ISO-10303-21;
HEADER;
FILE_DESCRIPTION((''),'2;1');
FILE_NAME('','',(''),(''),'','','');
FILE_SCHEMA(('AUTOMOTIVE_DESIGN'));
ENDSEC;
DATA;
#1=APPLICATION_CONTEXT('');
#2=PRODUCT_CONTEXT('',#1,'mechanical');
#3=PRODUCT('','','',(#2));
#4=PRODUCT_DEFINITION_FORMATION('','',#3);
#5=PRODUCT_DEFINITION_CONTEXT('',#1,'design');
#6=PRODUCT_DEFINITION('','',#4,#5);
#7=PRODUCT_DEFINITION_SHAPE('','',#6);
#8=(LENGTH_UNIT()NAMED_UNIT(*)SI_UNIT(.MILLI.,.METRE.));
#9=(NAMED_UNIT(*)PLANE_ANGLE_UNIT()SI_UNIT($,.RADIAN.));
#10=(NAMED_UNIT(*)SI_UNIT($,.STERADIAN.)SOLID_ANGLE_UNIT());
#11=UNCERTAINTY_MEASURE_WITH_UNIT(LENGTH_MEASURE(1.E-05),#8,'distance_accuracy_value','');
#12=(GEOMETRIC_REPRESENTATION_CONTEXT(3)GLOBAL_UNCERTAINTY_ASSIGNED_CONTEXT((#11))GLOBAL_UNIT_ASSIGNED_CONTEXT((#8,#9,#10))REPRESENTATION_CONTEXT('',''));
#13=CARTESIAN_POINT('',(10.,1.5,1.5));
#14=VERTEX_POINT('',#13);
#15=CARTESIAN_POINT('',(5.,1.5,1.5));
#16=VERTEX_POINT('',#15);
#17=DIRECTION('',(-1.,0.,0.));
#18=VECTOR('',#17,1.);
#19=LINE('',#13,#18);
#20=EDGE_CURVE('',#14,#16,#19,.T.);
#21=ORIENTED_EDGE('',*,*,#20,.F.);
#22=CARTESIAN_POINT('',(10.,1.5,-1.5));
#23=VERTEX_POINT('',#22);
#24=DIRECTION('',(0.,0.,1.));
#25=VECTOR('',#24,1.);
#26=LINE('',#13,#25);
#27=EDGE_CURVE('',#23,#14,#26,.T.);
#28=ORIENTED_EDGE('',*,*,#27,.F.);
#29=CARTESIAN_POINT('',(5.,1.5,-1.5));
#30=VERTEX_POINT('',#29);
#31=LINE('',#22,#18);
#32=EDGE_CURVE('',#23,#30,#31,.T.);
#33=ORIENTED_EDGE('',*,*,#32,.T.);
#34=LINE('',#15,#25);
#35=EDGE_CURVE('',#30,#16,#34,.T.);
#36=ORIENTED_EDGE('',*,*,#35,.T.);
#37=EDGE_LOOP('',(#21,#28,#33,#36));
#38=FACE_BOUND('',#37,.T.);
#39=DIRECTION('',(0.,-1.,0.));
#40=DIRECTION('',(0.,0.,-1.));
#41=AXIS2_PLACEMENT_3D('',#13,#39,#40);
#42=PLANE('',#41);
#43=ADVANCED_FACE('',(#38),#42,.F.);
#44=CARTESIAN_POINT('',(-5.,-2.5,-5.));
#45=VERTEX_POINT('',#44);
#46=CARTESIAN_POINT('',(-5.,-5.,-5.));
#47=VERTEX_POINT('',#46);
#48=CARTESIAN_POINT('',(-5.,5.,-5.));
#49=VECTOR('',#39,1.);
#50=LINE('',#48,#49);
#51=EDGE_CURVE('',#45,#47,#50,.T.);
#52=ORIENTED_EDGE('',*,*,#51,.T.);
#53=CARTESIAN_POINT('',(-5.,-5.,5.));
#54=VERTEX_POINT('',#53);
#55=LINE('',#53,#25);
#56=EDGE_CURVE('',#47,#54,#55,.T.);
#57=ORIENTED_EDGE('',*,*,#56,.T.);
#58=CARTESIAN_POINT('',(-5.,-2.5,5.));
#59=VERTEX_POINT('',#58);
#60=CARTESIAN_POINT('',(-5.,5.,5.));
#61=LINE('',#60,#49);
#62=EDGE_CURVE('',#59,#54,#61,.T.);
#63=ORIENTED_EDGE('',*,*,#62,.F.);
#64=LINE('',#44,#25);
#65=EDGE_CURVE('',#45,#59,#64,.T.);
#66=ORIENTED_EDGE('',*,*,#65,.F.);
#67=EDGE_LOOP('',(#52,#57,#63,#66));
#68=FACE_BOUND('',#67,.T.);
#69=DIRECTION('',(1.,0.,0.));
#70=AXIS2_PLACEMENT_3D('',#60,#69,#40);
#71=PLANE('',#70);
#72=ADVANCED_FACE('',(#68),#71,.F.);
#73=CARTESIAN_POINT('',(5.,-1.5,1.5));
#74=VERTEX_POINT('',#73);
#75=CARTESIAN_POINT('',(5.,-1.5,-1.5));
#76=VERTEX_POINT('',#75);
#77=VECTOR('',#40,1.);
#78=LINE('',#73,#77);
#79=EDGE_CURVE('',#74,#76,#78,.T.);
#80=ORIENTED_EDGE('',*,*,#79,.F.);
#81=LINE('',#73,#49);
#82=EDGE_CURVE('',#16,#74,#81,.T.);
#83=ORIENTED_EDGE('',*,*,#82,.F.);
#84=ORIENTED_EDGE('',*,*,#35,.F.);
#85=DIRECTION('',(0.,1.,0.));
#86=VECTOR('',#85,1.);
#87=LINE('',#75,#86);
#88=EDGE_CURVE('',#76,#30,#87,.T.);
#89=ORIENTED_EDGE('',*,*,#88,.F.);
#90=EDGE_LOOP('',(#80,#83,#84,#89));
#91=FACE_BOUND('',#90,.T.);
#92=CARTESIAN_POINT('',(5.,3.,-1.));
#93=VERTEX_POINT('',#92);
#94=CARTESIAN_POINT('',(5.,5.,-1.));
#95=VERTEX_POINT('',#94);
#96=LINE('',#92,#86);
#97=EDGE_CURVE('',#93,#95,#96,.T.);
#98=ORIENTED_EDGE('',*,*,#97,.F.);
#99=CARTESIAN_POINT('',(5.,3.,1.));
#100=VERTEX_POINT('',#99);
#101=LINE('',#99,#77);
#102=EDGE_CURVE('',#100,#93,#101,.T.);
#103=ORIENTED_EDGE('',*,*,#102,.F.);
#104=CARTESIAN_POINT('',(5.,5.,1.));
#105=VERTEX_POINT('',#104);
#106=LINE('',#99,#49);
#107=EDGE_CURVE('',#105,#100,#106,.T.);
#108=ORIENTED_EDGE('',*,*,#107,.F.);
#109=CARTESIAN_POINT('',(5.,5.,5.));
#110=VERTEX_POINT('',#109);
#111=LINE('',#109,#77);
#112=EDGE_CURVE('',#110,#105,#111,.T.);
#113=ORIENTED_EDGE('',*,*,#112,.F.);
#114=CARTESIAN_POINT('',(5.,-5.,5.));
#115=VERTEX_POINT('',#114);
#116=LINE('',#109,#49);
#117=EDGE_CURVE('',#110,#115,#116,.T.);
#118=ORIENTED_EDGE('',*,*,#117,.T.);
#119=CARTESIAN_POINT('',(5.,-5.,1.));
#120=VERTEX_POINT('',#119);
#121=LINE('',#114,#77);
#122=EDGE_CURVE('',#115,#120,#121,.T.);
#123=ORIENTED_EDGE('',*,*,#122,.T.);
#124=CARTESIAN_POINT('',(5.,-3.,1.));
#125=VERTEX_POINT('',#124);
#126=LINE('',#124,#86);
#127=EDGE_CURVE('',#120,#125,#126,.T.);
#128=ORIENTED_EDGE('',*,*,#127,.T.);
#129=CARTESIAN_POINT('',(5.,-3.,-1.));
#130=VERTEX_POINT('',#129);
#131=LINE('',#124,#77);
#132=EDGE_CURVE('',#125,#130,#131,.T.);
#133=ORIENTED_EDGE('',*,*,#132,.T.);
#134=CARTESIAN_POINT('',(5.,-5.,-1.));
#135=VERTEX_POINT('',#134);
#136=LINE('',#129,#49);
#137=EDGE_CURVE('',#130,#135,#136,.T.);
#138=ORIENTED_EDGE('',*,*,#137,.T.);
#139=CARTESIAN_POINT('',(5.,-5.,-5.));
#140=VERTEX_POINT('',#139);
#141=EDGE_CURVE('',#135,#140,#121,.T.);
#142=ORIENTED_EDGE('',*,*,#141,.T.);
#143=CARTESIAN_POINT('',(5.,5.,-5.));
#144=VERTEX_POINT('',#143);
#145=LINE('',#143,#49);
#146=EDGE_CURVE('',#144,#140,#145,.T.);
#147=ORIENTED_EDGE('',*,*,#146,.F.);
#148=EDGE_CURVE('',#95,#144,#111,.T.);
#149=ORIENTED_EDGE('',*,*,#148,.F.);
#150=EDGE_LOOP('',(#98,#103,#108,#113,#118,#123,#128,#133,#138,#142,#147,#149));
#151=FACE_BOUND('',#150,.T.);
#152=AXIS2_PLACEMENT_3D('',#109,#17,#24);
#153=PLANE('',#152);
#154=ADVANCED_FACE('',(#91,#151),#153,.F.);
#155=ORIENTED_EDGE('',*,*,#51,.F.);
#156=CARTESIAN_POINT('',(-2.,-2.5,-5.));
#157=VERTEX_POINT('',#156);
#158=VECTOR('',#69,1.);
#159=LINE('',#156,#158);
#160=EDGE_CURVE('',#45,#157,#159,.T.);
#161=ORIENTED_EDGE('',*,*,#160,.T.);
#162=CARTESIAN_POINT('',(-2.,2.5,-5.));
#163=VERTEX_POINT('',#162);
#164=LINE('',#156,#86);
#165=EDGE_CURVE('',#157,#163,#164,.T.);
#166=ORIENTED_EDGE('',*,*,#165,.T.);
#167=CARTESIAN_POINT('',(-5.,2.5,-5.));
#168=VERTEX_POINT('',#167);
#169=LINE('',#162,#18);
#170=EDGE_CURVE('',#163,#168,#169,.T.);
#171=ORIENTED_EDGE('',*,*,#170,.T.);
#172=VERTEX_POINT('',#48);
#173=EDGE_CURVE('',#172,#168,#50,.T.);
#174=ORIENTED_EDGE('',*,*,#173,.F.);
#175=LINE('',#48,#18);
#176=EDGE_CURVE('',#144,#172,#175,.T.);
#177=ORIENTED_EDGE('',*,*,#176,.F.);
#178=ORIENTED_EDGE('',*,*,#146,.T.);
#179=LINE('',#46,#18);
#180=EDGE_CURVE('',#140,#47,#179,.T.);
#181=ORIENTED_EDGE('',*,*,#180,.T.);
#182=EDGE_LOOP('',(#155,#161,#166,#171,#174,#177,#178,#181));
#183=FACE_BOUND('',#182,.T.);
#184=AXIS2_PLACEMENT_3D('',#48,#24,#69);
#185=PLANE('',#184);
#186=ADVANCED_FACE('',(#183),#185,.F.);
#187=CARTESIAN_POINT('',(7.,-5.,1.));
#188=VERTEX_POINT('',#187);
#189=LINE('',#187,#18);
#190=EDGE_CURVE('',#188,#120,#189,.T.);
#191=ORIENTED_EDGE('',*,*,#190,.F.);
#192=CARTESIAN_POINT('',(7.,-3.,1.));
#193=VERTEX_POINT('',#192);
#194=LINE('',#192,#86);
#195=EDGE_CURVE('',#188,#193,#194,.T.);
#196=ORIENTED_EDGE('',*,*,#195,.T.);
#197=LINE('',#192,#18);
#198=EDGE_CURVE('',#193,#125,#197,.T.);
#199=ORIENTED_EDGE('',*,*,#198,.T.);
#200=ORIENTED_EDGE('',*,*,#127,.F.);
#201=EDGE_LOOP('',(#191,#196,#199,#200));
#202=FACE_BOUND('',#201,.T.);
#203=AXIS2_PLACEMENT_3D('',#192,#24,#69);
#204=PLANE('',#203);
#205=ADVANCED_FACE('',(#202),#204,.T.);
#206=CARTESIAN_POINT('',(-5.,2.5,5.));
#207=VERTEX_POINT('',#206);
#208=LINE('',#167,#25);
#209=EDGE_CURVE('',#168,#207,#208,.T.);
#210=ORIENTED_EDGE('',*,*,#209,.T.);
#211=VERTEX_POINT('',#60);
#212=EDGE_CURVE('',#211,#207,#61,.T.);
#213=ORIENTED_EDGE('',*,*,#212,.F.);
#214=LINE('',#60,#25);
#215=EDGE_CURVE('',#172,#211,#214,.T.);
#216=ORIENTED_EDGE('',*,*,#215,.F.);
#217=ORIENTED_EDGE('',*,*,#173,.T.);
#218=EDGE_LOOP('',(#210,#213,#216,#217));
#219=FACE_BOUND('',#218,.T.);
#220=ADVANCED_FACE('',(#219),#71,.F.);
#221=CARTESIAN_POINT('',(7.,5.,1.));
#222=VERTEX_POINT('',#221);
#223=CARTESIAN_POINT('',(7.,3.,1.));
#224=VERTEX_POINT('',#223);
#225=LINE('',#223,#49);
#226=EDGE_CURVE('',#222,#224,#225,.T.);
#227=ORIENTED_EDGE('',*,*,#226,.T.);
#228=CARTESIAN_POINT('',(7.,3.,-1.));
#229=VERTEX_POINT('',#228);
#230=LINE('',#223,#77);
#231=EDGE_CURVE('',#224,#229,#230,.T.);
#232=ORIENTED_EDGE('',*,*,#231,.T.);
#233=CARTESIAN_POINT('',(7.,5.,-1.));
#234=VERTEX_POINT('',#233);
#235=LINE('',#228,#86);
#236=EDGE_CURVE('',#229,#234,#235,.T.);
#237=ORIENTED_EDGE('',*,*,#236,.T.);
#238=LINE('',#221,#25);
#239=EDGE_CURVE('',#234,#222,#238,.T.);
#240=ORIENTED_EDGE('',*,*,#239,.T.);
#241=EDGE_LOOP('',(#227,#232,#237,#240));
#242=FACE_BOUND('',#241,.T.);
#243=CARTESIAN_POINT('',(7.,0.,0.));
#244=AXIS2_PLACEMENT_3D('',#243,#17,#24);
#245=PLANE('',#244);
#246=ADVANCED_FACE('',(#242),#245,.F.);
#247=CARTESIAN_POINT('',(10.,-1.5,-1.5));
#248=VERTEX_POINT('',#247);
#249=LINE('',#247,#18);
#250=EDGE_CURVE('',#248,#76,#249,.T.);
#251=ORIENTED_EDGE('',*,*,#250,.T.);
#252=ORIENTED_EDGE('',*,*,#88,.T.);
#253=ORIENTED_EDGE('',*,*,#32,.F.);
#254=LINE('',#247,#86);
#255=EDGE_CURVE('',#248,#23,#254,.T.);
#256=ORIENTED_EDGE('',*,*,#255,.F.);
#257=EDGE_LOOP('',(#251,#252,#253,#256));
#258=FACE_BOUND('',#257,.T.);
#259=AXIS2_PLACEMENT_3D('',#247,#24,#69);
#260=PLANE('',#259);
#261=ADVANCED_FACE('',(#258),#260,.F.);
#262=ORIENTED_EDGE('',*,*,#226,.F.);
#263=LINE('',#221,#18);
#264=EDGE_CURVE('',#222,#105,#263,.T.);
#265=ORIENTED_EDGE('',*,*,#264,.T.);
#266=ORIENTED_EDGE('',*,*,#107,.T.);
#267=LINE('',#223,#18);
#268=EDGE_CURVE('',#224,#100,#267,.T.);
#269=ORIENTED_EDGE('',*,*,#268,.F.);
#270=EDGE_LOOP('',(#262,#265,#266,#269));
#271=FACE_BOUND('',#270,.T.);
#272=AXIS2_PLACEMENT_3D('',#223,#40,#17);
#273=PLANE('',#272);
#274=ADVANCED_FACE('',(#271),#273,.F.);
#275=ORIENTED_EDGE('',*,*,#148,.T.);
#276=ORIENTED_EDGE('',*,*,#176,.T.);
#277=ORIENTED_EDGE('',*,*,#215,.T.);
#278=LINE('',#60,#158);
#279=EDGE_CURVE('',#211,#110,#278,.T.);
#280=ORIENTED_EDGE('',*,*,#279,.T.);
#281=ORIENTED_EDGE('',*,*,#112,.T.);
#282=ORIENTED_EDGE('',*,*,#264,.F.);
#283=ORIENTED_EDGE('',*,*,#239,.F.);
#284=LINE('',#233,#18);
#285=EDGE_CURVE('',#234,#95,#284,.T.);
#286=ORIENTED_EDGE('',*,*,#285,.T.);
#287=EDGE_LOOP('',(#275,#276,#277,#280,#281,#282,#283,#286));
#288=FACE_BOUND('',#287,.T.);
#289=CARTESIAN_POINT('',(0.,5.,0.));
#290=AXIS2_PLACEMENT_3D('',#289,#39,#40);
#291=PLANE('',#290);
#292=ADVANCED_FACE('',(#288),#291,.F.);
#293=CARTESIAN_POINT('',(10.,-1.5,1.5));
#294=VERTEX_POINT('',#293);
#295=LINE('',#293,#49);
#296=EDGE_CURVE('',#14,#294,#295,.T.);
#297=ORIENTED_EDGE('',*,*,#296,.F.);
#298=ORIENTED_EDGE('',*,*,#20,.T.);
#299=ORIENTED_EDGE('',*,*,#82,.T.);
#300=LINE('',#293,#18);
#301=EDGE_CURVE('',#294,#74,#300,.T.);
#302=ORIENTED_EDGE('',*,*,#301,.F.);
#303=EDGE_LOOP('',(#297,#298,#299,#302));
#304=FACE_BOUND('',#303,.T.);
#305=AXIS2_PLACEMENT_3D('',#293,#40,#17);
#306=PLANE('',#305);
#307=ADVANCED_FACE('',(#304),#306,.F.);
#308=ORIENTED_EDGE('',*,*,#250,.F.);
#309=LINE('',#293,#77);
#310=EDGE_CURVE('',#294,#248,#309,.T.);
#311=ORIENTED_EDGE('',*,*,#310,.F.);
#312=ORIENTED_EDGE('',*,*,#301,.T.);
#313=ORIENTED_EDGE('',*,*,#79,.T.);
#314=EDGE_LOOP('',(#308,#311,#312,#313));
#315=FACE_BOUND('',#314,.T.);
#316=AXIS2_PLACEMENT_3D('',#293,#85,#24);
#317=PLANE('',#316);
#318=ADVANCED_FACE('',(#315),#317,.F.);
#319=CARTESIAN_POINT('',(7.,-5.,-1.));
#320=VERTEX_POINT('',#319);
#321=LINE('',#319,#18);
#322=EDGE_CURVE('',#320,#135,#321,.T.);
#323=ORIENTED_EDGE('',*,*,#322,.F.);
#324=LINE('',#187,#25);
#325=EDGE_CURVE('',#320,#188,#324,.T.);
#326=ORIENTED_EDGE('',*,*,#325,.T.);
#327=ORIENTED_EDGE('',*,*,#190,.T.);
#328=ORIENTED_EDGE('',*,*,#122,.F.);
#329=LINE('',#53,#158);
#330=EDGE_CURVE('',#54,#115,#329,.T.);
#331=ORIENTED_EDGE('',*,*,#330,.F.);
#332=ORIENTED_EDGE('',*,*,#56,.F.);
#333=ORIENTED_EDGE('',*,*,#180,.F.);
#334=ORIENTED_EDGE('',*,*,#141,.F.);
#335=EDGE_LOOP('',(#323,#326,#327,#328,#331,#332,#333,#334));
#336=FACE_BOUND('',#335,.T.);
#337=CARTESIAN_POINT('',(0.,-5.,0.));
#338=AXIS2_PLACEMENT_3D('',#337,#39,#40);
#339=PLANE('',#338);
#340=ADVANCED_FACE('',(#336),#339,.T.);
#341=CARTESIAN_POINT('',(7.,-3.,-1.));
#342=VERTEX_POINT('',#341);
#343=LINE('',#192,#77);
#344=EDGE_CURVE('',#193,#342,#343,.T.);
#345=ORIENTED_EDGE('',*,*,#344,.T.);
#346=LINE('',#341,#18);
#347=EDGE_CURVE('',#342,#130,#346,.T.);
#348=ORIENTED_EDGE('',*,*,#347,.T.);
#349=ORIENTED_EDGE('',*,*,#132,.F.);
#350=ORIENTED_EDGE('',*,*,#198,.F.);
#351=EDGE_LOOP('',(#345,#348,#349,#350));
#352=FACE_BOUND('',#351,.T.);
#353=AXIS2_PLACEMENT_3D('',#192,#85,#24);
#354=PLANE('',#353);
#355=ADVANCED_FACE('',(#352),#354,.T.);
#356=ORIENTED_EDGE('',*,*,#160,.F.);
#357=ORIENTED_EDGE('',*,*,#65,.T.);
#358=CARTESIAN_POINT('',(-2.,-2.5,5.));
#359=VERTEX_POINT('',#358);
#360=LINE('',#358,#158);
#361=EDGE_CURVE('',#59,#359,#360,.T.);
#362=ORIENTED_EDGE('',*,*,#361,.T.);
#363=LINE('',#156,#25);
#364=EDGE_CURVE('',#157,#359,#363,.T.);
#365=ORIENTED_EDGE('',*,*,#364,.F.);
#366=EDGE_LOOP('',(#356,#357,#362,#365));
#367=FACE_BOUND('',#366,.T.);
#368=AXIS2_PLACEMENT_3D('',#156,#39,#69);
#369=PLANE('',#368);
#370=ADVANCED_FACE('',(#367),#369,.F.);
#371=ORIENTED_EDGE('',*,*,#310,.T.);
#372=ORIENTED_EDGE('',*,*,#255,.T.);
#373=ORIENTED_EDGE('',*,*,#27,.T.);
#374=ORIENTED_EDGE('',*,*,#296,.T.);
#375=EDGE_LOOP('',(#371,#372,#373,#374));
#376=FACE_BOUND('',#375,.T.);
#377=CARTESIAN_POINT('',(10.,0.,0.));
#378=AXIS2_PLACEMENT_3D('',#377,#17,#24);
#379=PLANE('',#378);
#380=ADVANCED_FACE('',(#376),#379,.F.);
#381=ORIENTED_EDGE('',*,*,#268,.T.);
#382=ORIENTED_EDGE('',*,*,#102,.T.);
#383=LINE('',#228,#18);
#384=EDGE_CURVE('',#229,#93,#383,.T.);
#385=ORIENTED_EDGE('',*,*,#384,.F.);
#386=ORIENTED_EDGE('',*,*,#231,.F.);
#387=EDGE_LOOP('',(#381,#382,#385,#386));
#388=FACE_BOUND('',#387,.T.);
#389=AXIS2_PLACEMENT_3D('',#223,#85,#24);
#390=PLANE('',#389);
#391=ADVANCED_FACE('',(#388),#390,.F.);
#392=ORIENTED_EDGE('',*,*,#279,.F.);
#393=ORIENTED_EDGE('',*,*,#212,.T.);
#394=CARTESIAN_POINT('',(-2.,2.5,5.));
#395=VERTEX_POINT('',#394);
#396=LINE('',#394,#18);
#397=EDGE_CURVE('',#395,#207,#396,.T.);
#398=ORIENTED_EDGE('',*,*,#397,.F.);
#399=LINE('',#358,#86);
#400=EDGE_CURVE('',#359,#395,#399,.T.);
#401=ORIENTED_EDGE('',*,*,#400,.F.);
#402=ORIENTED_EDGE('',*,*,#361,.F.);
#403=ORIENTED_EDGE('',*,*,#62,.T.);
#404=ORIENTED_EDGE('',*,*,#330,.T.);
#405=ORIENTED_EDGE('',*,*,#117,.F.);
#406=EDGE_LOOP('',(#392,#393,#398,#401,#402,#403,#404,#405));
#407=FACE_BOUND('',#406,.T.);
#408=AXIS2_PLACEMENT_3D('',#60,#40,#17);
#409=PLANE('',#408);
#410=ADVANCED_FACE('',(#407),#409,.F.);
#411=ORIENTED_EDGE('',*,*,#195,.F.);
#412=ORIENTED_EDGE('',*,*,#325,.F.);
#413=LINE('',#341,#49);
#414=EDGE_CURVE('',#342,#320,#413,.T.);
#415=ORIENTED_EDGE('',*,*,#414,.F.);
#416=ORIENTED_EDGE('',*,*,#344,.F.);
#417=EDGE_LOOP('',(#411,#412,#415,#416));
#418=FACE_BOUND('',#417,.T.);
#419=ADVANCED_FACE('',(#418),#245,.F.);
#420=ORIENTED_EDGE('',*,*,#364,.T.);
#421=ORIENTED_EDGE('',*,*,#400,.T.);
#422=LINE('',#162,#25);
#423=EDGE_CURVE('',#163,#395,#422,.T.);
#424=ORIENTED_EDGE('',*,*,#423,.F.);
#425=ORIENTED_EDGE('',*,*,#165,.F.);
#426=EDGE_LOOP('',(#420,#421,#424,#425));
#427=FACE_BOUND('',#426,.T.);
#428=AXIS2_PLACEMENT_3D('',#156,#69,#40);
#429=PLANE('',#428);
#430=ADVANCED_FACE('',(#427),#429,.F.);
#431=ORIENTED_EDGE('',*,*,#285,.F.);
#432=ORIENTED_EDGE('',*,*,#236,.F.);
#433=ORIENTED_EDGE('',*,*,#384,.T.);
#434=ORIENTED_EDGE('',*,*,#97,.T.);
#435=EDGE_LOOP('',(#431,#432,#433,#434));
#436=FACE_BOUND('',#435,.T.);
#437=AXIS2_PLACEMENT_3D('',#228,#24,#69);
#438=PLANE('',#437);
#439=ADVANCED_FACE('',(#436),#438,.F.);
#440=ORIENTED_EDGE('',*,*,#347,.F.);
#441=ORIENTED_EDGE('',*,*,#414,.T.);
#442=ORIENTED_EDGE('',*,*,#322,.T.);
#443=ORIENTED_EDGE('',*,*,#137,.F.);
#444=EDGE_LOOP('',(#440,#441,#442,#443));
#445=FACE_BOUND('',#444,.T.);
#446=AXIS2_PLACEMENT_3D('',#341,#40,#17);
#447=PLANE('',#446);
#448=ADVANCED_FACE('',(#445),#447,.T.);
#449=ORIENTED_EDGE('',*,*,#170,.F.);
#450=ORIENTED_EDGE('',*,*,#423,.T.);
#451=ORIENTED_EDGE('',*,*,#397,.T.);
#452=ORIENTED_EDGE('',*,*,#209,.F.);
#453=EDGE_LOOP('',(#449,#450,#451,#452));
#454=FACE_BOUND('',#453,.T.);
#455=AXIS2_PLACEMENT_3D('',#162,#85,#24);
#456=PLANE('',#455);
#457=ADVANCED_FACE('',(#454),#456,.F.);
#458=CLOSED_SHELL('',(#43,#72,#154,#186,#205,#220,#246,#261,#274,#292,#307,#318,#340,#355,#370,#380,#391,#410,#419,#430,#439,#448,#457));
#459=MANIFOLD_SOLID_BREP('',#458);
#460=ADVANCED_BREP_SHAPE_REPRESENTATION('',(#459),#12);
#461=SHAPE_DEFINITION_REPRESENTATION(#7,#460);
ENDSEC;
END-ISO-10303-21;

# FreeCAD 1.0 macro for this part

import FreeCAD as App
import Part
import Sketcher
Q = App.Units.Quantity


def add_polygon(sketch, points):
    """Adds a closed chain of lines whose ends are joined by coincident constraints."""
    first, n = sketch.GeometryCount, len(points)
    for a, b in zip(points, points[1:] + points[:1]):
        sketch.addGeometry(Part.LineSegment(App.Vector(*a, 0), App.Vector(*b, 0)), False)
    for i in range(n):
        sketch.addConstraint(Sketcher.Constraint("Coincident", first + i, 2, first + (i + 1) % n, 1))

doc = App.newDocument("Part")
body = doc.addObject("PartDesign::Body", "Body")

sketch1 = body.newObject("Sketcher::SketchObject", "Sketch")
sketch1.AttachmentSupport = (doc.getObject("XZ_Plane"), [""])
sketch1.MapMode = "FlatFace"
add_polygon(sketch1, [(-5, -5), (-5, 5), (5, 5), (5, -5)])
sketch1.addConstraint(Sketcher.Constraint("Vertical", 0))
sketch1.addConstraint(Sketcher.Constraint("Horizontal", 1))
sketch1.addConstraint(Sketcher.Constraint("Vertical", 2))
sketch1.addConstraint(Sketcher.Constraint("Horizontal", 3))
sketch1.addConstraint(Sketcher.Constraint("Symmetric", 0, 2, 2, 2, -1, 1))
sketch1.addConstraint(Sketcher.Constraint("Equal", 3, 0))
sketch1.addConstraint(Sketcher.Constraint("DistanceX", 1, 1, 1, 2, Q("10 mm")))
pad1 = body.newObject("PartDesign::Pad", "Pad")
pad1.Profile = sketch1
pad1.Length = 10
pad1.Midplane = True

sketch2 = body.newObject("Sketcher::SketchObject", "Sketch001")
sketch2.AttachmentSupport = (doc.getObject("XY_Plane"), [""])
sketch2.MapMode = "FlatFace"
sketch2.AttachmentOffset = App.Placement(App.Vector(0, 0, 5), App.Rotation())
add_polygon(sketch2, [(-5, 2.5), (-5, -2.5), (-2, -2.5), (-2, 2.5)])
sketch2.addConstraint(Sketcher.Constraint("Vertical", 0))
sketch2.addConstraint(Sketcher.Constraint("Horizontal", 1))
sketch2.addConstraint(Sketcher.Constraint("Vertical", 2))
sketch2.addConstraint(Sketcher.Constraint("Horizontal", 3))
sketch2.addConstraint(Sketcher.Constraint("DistanceX", 1, 1, 1, 2, Q("3 mm")))
sketch2.addConstraint(Sketcher.Constraint("DistanceY", 0, 2, 0, 1, Q("5 mm")))
sketch2.addConstraint(Sketcher.Constraint("DistanceX", 0, 2, -1, 1, Q("5 mm")))
sketch2.addConstraint(Sketcher.Constraint("DistanceY", 0, 2, -1, 1, Q("2.5 mm")))
pocket1 = body.newObject("PartDesign::Pocket", "Pocket")
pocket1.Profile = sketch2
pocket1.Type = "ThroughAll"

sketch3 = body.newObject("Sketcher::SketchObject", "Sketch002")
sketch3.AttachmentSupport = (doc.getObject("YZ_Plane"), [""])
sketch3.MapMode = "FlatFace"
sketch3.AttachmentOffset = App.Placement(App.Vector(0, 0, 5), App.Rotation())
add_polygon(sketch3, [(1.5, 1.5), (-1.5, 1.5), (-1.5, -1.5), (1.5, -1.5)])
sketch3.addConstraint(Sketcher.Constraint("Horizontal", 0))
sketch3.addConstraint(Sketcher.Constraint("Vertical", 1))
sketch3.addConstraint(Sketcher.Constraint("Horizontal", 2))
sketch3.addConstraint(Sketcher.Constraint("Vertical", 3))
sketch3.addConstraint(Sketcher.Constraint("Symmetric", 0, 2, 2, 2, -1, 1))
sketch3.addConstraint(Sketcher.Constraint("Equal", 2, 1))
sketch3.addConstraint(Sketcher.Constraint("DistanceX", 0, 2, 0, 1, Q("3 mm")))
pad2 = body.newObject("PartDesign::Pad", "Pad001")
pad2.Profile = sketch3
pad2.Length = 5

sketch4 = body.newObject("Sketcher::SketchObject", "Sketch003")
sketch4.AttachmentSupport = (doc.getObject("YZ_Plane"), [""])
sketch4.MapMode = "FlatFace"
sketch4.AttachmentOffset = App.Placement(App.Vector(0, 0, 5), App.Rotation())
add_polygon(sketch4, [(5, 1), (3, 1), (3, -1), (5, -1)])
sketch4.addConstraint(Sketcher.Constraint("Horizontal", 0))
sketch4.addConstraint(Sketcher.Constraint("Vertical", 1))
sketch4.addConstraint(Sketcher.Constraint("Horizontal", 2))
sketch4.addConstraint(Sketcher.Constraint("Vertical", 3))
sketch4.addConstraint(Sketcher.Constraint("Equal", 2, 1))
sketch4.addConstraint(Sketcher.Constraint("DistanceX", 0, 2, 0, 1, Q("2 mm")))
sketch4.addConstraint(Sketcher.Constraint("DistanceX", -1, 1, 0, 2, Q("3 mm")))
sketch4.addConstraint(Sketcher.Constraint("DistanceY", -1, 1, 0, 2, Q("1 mm")))
pad3 = body.newObject("PartDesign::Pad", "Pad002")
pad3.Profile = sketch4
pad3.Length = 2
doc.recompute()

mirrored = body.newObject("PartDesign::Mirrored", "Mirrored")
mirrored.Originals = [pad3]
mirrored.MirrorPlane = (doc.getObject("XZ_Plane"), [""])
body.Tip = mirrored

doc.recompute()
